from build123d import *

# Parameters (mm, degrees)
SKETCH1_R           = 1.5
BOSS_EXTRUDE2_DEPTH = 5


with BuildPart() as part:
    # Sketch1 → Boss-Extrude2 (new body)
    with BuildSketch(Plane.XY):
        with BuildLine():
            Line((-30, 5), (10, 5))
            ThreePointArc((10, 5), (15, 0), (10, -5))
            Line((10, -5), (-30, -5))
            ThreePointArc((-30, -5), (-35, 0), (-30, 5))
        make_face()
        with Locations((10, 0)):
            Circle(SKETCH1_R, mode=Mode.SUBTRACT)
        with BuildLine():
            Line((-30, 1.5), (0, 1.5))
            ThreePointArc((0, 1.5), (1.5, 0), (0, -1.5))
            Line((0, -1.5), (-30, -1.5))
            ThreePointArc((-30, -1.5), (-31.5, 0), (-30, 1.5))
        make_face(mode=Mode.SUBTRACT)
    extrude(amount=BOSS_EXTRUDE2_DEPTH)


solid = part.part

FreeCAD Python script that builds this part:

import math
import FreeCAD as App
import Part
import Sketcher

doc = App.newDocument("Part")
body = doc.addObject("PartDesign::Body", "Body")

# Sketch on XY plane
sketch1 = body.newObject("Sketcher::SketchObject", "Sketch")
sketch1.AttachmentSupport = (doc.getObject("XY_Plane"), [""])
sketch1.MapMode = "FlatFace"
sketch1.addGeometry(Part.LineSegment(App.Vector(10, 5, 0), App.Vector(-30, 5, 0)), False)
sketch1.addGeometry(Part.ArcOfCircle(Part.Circle(App.Vector(-30, 0, 0), App.Vector(0, 0, 1), 5), math.radians(90), math.radians(270)), False)
sketch1.addGeometry(Part.LineSegment(App.Vector(-30, -5, 0), App.Vector(10, -5, 0)), False)
sketch1.addGeometry(Part.ArcOfCircle(Part.Circle(App.Vector(10, 0, 0), App.Vector(0, 0, 1), 5), math.radians(-90), math.radians(90)), False)
sketch1.addGeometry(Part.Circle(App.Vector(10, 0, 0), App.Vector(0, 0, 1), 1.5), False)
sketch1.addGeometry(Part.LineSegment(App.Vector(-30, 1.5, 0), App.Vector(0, 1.5, 0)), False)
sketch1.addGeometry(Part.ArcOfCircle(Part.Circle(App.Vector(0, 0, 0), App.Vector(0, 0, 1), 1.5), math.radians(-90), math.radians(90)), False)
sketch1.addGeometry(Part.LineSegment(App.Vector(0, -1.5, 0), App.Vector(-30, -1.5, 0)), False)
sketch1.addGeometry(Part.ArcOfCircle(Part.Circle(App.Vector(-30, 0, 0), App.Vector(0, 0, 1), 1.5), math.radians(90), math.radians(270)), False)
sketch1.addConstraint(Sketcher.Constraint("Tangent", 0, 2, 1, 1))
sketch1.addConstraint(Sketcher.Constraint("Tangent", 1, 2, 2, 1))
sketch1.addConstraint(Sketcher.Constraint("Tangent", 2, 2, 3, 1))
sketch1.addConstraint(Sketcher.Constraint("Tangent", 3, 2, 0, 1))
sketch1.addConstraint(Sketcher.Constraint("Tangent", 5, 2, 6, 2))
sketch1.addConstraint(Sketcher.Constraint("Tangent", 6, 1, 7, 1))
sketch1.addConstraint(Sketcher.Constraint("Tangent", 7, 2, 8, 2))
sketch1.addConstraint(Sketcher.Constraint("Tangent", 8, 1, 5, 1))
sketch1.addConstraint(Sketcher.Constraint("Horizontal", 0))
sketch1.addConstraint(Sketcher.Constraint("Horizontal", 2))
sketch1.addConstraint(Sketcher.Constraint("Horizontal", 5))
sketch1.addConstraint(Sketcher.Constraint("Horizontal", 7))
sketch1.addConstraint(Sketcher.Constraint("Coincident", 6, 3, -1, 1))
sketch1.addConstraint(Sketcher.Constraint("Coincident", 4, 3, 3, 3))
sketch1.addConstraint(Sketcher.Constraint("Coincident", 8, 3, 1, 3))
sketch1.addConstraint(Sketcher.Constraint("Equal", 4, 6))
sketch1.addConstraint(Sketcher.Constraint("Diameter", 4, 3.0))
sketch1.addConstraint(Sketcher.Constraint("Radius", 1, 5.0))
sketch1.addConstraint(Sketcher.Constraint("DistanceX", 0, 2, 0, 1, 40.0))
sketch1.addConstraint(Sketcher.Constraint("DistanceX", 5, 1, 5, 2, 30.0))
pad1 = body.newObject("PartDesign::Pad", "Pad")
pad1.Profile = sketch1
pad1.Length = 5

doc.recompute()
